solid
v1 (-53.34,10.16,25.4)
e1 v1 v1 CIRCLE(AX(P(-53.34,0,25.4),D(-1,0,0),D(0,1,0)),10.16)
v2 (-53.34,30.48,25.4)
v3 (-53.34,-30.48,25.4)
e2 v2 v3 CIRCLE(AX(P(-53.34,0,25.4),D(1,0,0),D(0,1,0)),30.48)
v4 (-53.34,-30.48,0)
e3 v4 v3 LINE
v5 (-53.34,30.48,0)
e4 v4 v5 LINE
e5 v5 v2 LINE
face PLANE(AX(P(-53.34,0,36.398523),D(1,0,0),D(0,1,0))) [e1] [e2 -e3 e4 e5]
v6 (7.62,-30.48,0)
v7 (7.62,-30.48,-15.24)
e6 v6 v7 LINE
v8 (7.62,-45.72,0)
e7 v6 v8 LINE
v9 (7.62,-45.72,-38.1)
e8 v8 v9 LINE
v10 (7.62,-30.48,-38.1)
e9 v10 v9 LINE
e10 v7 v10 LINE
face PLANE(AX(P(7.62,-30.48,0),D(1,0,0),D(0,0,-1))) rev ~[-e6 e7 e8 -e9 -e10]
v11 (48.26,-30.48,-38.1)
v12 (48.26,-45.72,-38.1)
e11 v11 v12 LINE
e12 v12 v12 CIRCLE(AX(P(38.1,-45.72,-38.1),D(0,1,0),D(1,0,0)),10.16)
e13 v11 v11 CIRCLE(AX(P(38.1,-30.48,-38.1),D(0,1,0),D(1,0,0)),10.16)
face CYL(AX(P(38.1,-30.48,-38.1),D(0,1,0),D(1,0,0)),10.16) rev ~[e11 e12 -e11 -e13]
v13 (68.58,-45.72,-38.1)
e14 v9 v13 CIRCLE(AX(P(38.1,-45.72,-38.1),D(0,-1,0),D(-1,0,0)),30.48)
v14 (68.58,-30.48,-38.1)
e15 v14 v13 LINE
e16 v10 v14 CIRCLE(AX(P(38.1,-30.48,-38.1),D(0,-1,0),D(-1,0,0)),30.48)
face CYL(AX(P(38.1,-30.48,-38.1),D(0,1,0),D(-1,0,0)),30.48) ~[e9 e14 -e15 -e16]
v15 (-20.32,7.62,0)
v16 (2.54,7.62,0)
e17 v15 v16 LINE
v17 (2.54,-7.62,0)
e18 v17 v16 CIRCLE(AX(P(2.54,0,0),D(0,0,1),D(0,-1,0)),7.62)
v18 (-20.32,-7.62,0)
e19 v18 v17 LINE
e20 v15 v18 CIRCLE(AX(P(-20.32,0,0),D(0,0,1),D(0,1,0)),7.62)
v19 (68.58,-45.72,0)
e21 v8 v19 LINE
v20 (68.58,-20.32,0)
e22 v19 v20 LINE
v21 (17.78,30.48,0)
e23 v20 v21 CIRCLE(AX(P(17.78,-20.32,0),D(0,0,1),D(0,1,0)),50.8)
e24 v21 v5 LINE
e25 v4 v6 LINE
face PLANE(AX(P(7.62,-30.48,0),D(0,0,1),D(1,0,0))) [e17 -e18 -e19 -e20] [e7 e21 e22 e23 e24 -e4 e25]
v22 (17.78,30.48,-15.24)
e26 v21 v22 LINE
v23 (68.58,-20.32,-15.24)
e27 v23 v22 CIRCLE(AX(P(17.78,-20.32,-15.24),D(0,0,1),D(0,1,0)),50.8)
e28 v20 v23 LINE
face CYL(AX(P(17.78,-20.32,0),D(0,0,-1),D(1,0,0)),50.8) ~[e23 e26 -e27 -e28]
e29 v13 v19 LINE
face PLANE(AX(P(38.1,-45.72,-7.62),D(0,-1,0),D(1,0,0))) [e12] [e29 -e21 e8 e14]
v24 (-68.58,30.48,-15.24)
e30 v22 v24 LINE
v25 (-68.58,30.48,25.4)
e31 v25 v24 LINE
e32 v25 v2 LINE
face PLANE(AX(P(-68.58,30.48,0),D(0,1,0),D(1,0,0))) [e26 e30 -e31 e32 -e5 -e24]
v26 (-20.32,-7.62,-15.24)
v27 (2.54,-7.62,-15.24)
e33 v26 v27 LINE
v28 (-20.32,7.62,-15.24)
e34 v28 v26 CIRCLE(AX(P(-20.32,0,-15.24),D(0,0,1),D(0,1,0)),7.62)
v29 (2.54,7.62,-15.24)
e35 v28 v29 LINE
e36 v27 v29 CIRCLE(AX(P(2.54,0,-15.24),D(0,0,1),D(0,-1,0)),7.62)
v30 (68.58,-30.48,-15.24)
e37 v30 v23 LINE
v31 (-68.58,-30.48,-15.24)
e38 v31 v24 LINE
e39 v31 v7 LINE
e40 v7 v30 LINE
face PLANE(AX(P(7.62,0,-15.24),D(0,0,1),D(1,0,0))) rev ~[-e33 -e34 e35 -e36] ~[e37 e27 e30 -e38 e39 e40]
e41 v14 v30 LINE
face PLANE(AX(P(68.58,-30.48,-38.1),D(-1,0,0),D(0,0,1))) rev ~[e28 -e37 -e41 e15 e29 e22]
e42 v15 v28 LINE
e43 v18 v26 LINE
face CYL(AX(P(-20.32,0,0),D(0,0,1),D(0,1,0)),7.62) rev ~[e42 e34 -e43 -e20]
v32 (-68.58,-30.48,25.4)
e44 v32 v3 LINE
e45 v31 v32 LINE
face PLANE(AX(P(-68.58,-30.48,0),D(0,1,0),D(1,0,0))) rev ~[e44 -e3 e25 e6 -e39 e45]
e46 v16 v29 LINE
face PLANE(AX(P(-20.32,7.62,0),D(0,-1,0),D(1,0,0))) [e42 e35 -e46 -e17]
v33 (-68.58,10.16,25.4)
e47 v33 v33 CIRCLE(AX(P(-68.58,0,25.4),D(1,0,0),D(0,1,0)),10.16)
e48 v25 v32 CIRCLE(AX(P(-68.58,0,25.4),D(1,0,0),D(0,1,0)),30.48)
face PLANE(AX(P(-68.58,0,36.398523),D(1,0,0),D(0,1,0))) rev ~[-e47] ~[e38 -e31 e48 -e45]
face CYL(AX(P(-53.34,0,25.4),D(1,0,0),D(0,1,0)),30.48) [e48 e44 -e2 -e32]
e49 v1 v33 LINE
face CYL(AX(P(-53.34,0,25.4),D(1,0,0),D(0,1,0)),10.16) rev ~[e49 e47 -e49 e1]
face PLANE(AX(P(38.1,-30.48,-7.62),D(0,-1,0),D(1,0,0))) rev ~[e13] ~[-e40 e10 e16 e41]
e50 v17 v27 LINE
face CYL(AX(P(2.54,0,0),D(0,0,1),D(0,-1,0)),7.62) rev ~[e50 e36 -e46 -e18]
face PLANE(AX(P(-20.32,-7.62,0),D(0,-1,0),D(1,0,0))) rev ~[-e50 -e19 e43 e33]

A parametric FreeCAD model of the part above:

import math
import FreeCAD as App
import Part
import Sketcher
from FreeCAD import Vector
Q = App.Units.Quantity


def edges_at(feature, points):
    """Names of the edges that pass closest to the given points."""
    edges = feature.Shape.Edges
    near = lambda p: min(range(len(edges)), key=lambda i: edges[i].distToShape(Part.Vertex(*p))[0])
    return sorted({f"Edge{near(p) + 1}" for p in points})

doc = App.newDocument("Part")
body = doc.addObject("PartDesign::Body", "Body")

sketch1 = doc.addObject("Sketcher::SketchObject", "Sketch")
body.addObject(sketch1)
sketch1.AttachmentSupport = (doc.XY_Plane, [""])
sketch1.MapMode = "FlatFace"
sketch1.addGeometry([
    Part.LineSegment(Vector(69, -30, 0), Vector(69, 30, 0)),
    Part.LineSegment(Vector(69, 30, 0), Vector(-69, 30, 0)),
    Part.LineSegment(Vector(-69, 30, 0), Vector(-69, -30, 0)),
    Part.LineSegment(Vector(-69, -30, 0), Vector(69, -30, 0)),
], False)
sketch1.addConstraint([
    Sketcher.Constraint("Coincident", 0, 2, 1, 1),
    Sketcher.Constraint("Coincident", 1, 2, 2, 1),
    Sketcher.Constraint("Coincident", 2, 2, 3, 1),
    Sketcher.Constraint("Coincident", 3, 2, 0, 1),
    Sketcher.Constraint("Vertical", 0),
    Sketcher.Constraint("Horizontal", 1),
    Sketcher.Constraint("Vertical", 2),
    Sketcher.Constraint("Horizontal", 3),
    Sketcher.Constraint("Symmetric", 0, 2, 2, 2, -1, 1),
    Sketcher.Constraint("DistanceX", 1, 2, 1, 1, Q("5.4 in")),
    Sketcher.Constraint("DistanceY", 0, 1, 0, 2, Q("2.4 in")),
])
pad1 = doc.addObject("PartDesign::Pad", "Pad")
body.addObject(pad1)
pad1.Profile = sketch1
pad1.Length = Q("0.6 in")
pad1.Reversed = True

sketch2 = doc.addObject("Sketcher::SketchObject", "Sketch001")
body.addObject(sketch2)
sketch2.AttachmentSupport = (doc.XY_Plane, [""])
sketch2.MapMode = "FlatFace"
sketch2.addGeometry([
    Part.LineSegment(Vector(-69, 30, 0), Vector(-69, -30, 0)),
    Part.LineSegment(Vector(-69, -30, 0), Vector(-53, -30, 0)),
    Part.LineSegment(Vector(-53, -30, 0), Vector(-53, 30, 0)),
    Part.LineSegment(Vector(-53, 30, 0), Vector(-69, 30, 0)),
], False)
sketch2.addConstraint([
    Sketcher.Constraint("Coincident", 0, 2, 1, 1),
    Sketcher.Constraint("Coincident", 1, 2, 2, 1),
    Sketcher.Constraint("Coincident", 2, 2, 3, 1),
    Sketcher.Constraint("Coincident", 3, 2, 0, 1),
    Sketcher.Constraint("Vertical", 0),
    Sketcher.Constraint("Horizontal", 1),
    Sketcher.Constraint("Vertical", 2),
    Sketcher.Constraint("Horizontal", 3),
    Sketcher.Constraint("DistanceX", 1, 1, 1, 2, Q("0.6 in")),
    Sketcher.Constraint("DistanceY", 0, 2, 0, 1, Q("2.4 in")),
    Sketcher.Constraint("DistanceX", 0, 2, -1, 1, Q("2.7 in")),
    Sketcher.Constraint("DistanceY", 0, 2, -1, 1, Q("1.2 in")),
])
pad2 = doc.addObject("PartDesign::Pad", "Pad001")
body.addObject(pad2)
pad2.Profile = sketch2
pad2.Length = Q("1 in")

sketch3 = doc.addObject("Sketcher::SketchObject", "Sketch002")
body.addObject(sketch3)
sketch3.AttachmentSupport = (doc.YZ_Plane, [""])
sketch3.MapMode = "FlatFace"
sketch3.AttachmentOffset = App.Placement(Vector(0, 0, -2.1 * 25.4), App.Rotation())
sketch3.addGeometry([
    Part.LineSegment(Vector(10, 25, 0), Vector(30, 25, 0)),
    Part.ArcOfCircle(Part.Circle(Vector(0, 25, 0), Vector(0, 0, 1), 30), math.radians(0), math.radians(180)),
    Part.LineSegment(Vector(-30, 25, 0), Vector(-10, 25, 0)),
    Part.ArcOfCircle(Part.Circle(Vector(0, 25, 0), Vector(0, 0, 1), 10), math.radians(0), math.radians(180)),
], False)
sketch3.addConstraint([
    Sketcher.Constraint("Coincident", 0, 2, 1, 1),
    Sketcher.Constraint("Coincident", 1, 2, 2, 1),
    Sketcher.Constraint("Coincident", 2, 2, 3, 2),
    Sketcher.Constraint("Coincident", 3, 1, 0, 1),
    Sketcher.Constraint("Horizontal", 0),
    Sketcher.Constraint("Horizontal", 2),
    Sketcher.Constraint("Coincident", 3, 3, 1, 3),
    Sketcher.Constraint("Symmetric", 0, 2, 1, 2, -2),
    Sketcher.Constraint("Horizontal", 3, 3, 0, 2),
    Sketcher.Constraint("Radius", 1, Q("1.2 in")),
    Sketcher.Constraint("Radius", 3, Q("0.4 in")),
    Sketcher.Constraint("DistanceY", -1, 1, 1, 3, Q("1 in")),
])
pad3 = doc.addObject("PartDesign::Pad", "Pad002")
body.addObject(pad3)
pad3.Profile = sketch3
pad3.Length = Q("0.6 in")
pad3.Reversed = True

sketch4 = doc.addObject("Sketcher::SketchObject", "Sketch003")
body.addObject(sketch4)
sketch4.AttachmentSupport = (doc.YZ_Plane, [""])
sketch4.MapMode = "FlatFace"
sketch4.AttachmentOffset = App.Placement(Vector(0, 0, -2.1 * 25.4), App.Rotation())
sketch4.addGeometry(Part.Circle(Vector(0, 25, 0), Vector(0, 0, 1), 10), False)
sketch4.addConstraint([
    Sketcher.Constraint("PointOnObject", 0, 3, -2),
    Sketcher.Constraint("Diameter", 0, Q("0.8 in")),
    Sketcher.Constraint("DistanceY", -1, 1, 0, 3, Q("1 in")),
])
pocket1 = doc.addObject("PartDesign::Pocket", "Pocket")
body.addObject(pocket1)
pocket1.Profile = sketch4
pocket1.Type = "ThroughAll"

sketch5 = doc.addObject("Sketcher::SketchObject", "Sketch004")
body.addObject(sketch5)
sketch5.AttachmentSupport = (doc.XZ_Plane, [""])
sketch5.MapMode = "FlatFace"
sketch5.AttachmentOffset = App.Placement(Vector(0, 0, 1.2 * 25.4), App.Rotation())
sketch5.addGeometry([
    Part.LineSegment(Vector(8, 0, 0), Vector(8, -38, 0)),
    Part.ArcOfCircle(Part.Circle(Vector(38, -38, 0), Vector(0, 0, 1), 30), math.radians(180), math.radians(360)),
    Part.LineSegment(Vector(69, -38, 0), Vector(69, 0, 0)),
    Part.LineSegment(Vector(69, 0, 0), Vector(8, 0, 0)),
    Part.Circle(Vector(38, -38, 0), Vector(0, 0, 1), 10),
], False)
sketch5.addConstraint([
    Sketcher.Constraint("Tangent", 0, 2, 1, 1),
    Sketcher.Constraint("Tangent", 1, 2, 2, 1),
    Sketcher.Constraint("Coincident", 2, 2, 3, 1),
    Sketcher.Constraint("Coincident", 3, 2, 0, 1),
    Sketcher.Constraint("Vertical", 0),
    Sketcher.Constraint("Vertical", 2),
    Sketcher.Constraint("Horizontal", 3),
    Sketcher.Constraint("Coincident", 4, 3, 1, 3),
    Sketcher.Constraint("PointOnObject", 2, 2, -1),
    Sketcher.Constraint("Diameter", 4, Q("0.8 in")),
    Sketcher.Constraint("Radius", 1, Q("1.2 in")),
    Sketcher.Constraint("DistanceY", 0, 2, 0, 1, Q("1.5 in")),
    Sketcher.Constraint("DistanceX", -1, 1, 1, 3, Q("1.5 in")),
])
pad4 = doc.addObject("PartDesign::Pad", "Pad003")
body.addObject(pad4)
pad4.Profile = sketch5
pad4.Length = Q("0.6 in")
doc.recompute()

fillet = doc.addObject("PartDesign::Fillet", "Fillet")
body.addObject(fillet)
fillet.Base = (pad4, edges_at(pad4, [(68.58, 30.48, -7.62)]))
fillet.Radius = Q("2 in")

sketch6 = doc.addObject("Sketcher::SketchObject", "Sketch005")
body.addObject(sketch6)
sketch6.AttachmentSupport = (doc.XY_Plane, [""])
sketch6.MapMode = "FlatFace"
sketch6.addGeometry([
    Part.LineSegment(Vector(-20, -8, 0), Vector(3, -8, 0)),
    Part.ArcOfCircle(Part.Circle(Vector(3, 0, 0), Vector(0, 0, 1), 8), math.radians(-90), math.radians(90)),
    Part.LineSegment(Vector(3, 8, 0), Vector(-20, 8, 0)),
    Part.ArcOfCircle(Part.Circle(Vector(-20, 0, 0), Vector(0, 0, 1), 8), math.radians(90), math.radians(270)),
], False)
sketch6.addConstraint([
    Sketcher.Constraint("Tangent", 0, 2, 1, 1),
    Sketcher.Constraint("Tangent", 1, 2, 2, 1),
    Sketcher.Constraint("Tangent", 2, 2, 3, 1),
    Sketcher.Constraint("Tangent", 3, 2, 0, 1),
    Sketcher.Constraint("Horizontal", 0),
    Sketcher.Constraint("Horizontal", 2),
    Sketcher.Constraint("PointOnObject", 1, 3, -1),
    Sketcher.Constraint("Radius", 1, Q("0.3 in")),
    Sketcher.Constraint("DistanceX", 0, 1, 0, 2, Q("0.9 in")),
    Sketcher.Constraint("DistanceX", -1, 1, 1, 3, Q("0.1 in")),
])
pocket2 = doc.addObject("PartDesign::Pocket", "Pocket001")
body.addObject(pocket2)
pocket2.Profile = sketch6
pocket2.Type = "ThroughAll"

doc.recompute()
